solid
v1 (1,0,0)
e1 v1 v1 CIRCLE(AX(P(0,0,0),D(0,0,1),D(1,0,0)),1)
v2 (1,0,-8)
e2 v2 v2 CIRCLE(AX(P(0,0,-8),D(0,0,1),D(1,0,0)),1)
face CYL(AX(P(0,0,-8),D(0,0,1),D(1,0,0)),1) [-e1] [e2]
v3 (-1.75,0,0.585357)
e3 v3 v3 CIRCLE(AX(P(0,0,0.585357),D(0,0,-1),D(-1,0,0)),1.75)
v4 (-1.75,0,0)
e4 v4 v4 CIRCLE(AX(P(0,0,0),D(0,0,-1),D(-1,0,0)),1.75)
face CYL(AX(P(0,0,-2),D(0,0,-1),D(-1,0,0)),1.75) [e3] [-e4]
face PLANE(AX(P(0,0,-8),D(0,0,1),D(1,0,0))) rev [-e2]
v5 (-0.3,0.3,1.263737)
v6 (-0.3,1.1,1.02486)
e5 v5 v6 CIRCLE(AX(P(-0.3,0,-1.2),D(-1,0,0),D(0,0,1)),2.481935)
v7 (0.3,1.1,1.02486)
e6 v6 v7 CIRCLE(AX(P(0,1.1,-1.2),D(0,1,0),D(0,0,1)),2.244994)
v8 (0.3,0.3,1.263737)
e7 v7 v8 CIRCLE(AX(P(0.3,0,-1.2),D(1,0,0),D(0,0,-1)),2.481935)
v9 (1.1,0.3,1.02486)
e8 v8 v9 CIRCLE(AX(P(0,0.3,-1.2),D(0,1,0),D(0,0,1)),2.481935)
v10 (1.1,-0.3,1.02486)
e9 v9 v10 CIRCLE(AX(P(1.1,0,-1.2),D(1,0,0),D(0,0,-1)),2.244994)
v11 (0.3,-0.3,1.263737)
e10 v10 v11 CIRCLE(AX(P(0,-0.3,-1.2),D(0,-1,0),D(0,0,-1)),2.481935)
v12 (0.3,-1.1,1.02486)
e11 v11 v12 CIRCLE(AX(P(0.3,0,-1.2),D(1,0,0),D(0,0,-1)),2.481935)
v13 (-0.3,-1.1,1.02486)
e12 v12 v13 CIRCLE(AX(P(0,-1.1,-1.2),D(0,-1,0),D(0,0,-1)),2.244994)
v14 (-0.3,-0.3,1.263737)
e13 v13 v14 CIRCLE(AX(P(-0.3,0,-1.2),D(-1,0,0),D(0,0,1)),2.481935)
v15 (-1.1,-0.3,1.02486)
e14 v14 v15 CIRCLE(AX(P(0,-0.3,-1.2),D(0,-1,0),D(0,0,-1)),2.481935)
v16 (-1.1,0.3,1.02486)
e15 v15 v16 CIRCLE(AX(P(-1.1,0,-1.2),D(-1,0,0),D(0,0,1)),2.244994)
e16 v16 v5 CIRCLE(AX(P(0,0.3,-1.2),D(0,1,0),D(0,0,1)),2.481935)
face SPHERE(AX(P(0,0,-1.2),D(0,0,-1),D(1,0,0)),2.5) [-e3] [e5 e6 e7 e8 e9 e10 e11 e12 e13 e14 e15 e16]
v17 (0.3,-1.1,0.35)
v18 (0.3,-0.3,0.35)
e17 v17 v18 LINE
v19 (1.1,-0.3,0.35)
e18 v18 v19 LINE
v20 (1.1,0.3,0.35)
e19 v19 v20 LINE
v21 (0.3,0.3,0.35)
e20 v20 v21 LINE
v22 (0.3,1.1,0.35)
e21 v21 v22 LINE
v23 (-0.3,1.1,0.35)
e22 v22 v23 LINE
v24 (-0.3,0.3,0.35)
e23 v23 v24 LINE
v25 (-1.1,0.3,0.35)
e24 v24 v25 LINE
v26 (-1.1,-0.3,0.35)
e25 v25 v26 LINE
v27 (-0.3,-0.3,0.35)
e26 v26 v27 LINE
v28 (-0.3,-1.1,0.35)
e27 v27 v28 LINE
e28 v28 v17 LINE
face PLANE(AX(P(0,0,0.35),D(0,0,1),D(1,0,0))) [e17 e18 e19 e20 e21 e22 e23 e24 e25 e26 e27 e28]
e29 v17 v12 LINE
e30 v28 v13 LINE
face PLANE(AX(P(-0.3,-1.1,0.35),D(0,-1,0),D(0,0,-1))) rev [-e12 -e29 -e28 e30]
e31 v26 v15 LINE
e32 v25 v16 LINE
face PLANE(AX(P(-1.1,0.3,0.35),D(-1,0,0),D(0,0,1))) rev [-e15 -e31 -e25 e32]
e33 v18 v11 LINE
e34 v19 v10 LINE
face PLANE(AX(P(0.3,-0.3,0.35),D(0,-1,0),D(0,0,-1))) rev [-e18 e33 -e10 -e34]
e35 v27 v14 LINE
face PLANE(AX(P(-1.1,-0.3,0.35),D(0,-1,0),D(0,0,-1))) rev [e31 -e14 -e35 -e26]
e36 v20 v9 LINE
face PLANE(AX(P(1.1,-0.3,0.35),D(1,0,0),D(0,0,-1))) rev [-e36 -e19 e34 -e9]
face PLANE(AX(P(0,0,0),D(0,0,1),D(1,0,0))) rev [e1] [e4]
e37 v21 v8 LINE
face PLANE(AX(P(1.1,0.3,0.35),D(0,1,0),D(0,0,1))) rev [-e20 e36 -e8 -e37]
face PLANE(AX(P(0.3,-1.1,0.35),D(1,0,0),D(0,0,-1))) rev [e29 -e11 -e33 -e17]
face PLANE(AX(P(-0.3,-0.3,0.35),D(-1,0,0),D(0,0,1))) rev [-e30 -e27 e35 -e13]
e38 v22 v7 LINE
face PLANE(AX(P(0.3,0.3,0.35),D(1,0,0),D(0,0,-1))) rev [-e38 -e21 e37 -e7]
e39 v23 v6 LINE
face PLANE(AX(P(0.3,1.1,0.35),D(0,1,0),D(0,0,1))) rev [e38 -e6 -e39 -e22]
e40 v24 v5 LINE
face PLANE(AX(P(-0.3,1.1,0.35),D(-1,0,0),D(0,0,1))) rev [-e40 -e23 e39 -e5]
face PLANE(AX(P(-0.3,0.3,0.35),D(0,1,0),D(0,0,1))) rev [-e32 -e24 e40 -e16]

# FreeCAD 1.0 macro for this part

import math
import FreeCAD as App
import Part
import Sketcher

V = App.Vector
Q = App.Units.Quantity


def add_polygon(sketch, points):
    """Adds a closed chain of lines whose ends are joined by coincident constraints."""
    first, n = sketch.GeometryCount, len(points)
    for a, b in zip(points, points[1:] + points[:1]):
        sketch.addGeometry(Part.LineSegment(App.Vector(*a, 0), App.Vector(*b, 0)), False)
    for i in range(n):
        sketch.addConstraint(Sketcher.Constraint("Coincident", first + i, 2, first + (i + 1) % n, 1))

doc = App.newDocument("Part")
body = doc.addObject("PartDesign::Body", "Body")

# Sketch on XY plane
sketch1 = body.newObject("Sketcher::SketchObject", "Sketch")
sketch1.AttachmentSupport = (doc.getObject("XY_Plane"), [""])
sketch1.MapMode = "FlatFace"
sketch1.addGeometry(Part.Circle(V(0, 0, 0), V(0, 0, 1), 1), False)
sketch1.addConstraint(Sketcher.Constraint("Coincident", 0, 3, -1, 1))
sketch1.addConstraint(Sketcher.Constraint("Diameter", 0, Q("2 mm")))
pad1 = body.newObject("PartDesign::Pad", "Pad")
pad1.Profile = sketch1
pad1.Length = 8
pad1.Reversed = True

# Sketch on XZ plane
sketch2 = body.newObject("Sketcher::SketchObject", "Sketch001")
sketch2.AttachmentSupport = (doc.getObject("XZ_Plane"), [""])
sketch2.MapMode = "FlatFace"
sketch2.addGeometry(Part.LineSegment(V(1.8, 0, 0), V(0, 0, 0)), False)
sketch2.addGeometry(Part.LineSegment(V(0, 0, 0), V(0, 1.3, 0)), False)
sketch2.addGeometry(Part.ArcOfCircle(Part.Circle(V(0, -1.2, 0), V(0, 0, 1), 2.5), math.radians(46), math.radians(90)), False)
sketch2.addGeometry(Part.LineSegment(V(1.8, 0.6, 0), V(1.8, 0, 0)), False)
sketch2.addConstraint(Sketcher.Constraint("Coincident", 0, 2, 1, 1))
sketch2.addConstraint(Sketcher.Constraint("Coincident", 1, 2, 2, 2))
sketch2.addConstraint(Sketcher.Constraint("Coincident", 2, 1, 3, 1))
sketch2.addConstraint(Sketcher.Constraint("Coincident", 3, 2, 0, 1))
sketch2.addConstraint(Sketcher.Constraint("Horizontal", 0))
sketch2.addConstraint(Sketcher.Constraint("Vertical", 1))
sketch2.addConstraint(Sketcher.Constraint("Vertical", 3))
sketch2.addConstraint(Sketcher.Constraint("Coincident", 0, 2, -1, 1))
sketch2.addConstraint(Sketcher.Constraint("PointOnObject", 2, 3, -2))
sketch2.addConstraint(Sketcher.Constraint("Radius", 2, Q("2.5 mm")))
sketch2.addConstraint(Sketcher.Constraint("DistanceY", 1, 1, 1, 2, Q("1.3 mm")))
sketch2.addConstraint(Sketcher.Constraint("DistanceX", 0, 2, 0, 1, Q("1.75 mm")))
revolution = body.newObject("PartDesign::Revolution", "Revolution")
revolution.Profile = sketch2
revolution.ReferenceAxis = (sketch2, ["V_Axis"])
revolution.Angle = 360

# Sketch on XY plane
sketch3 = body.newObject("Sketcher::SketchObject", "Sketch002")
sketch3.AttachmentSupport = (doc.getObject("XY_Plane"), [""])
sketch3.MapMode = "FlatFace"
sketch3.AttachmentOffset = App.Placement(V(0, 0, 1.31), App.Rotation())
add_polygon(sketch3, [(-0.3, -1.1), (0.3, -1.1), (0.3, -0.3), (1.1, -0.3), (1.1, 0.3), (0.3, 0.3), (0.3, 1.1), (-0.3, 1.1), (-0.3, 0.3), (-1.1, 0.3), (-1.1, -0.3), (-0.3, -0.3)])  # lines 0-11
sketch3.addConstraint(Sketcher.Constraint("Horizontal", 0))
sketch3.addConstraint(Sketcher.Constraint("Vertical", 1))
sketch3.addConstraint(Sketcher.Constraint("Horizontal", 2))
sketch3.addConstraint(Sketcher.Constraint("Vertical", 3))
sketch3.addConstraint(Sketcher.Constraint("Horizontal", 4))
sketch3.addConstraint(Sketcher.Constraint("Vertical", 5))
sketch3.addConstraint(Sketcher.Constraint("Horizontal", 6))
sketch3.addConstraint(Sketcher.Constraint("Vertical", 7))
sketch3.addConstraint(Sketcher.Constraint("Horizontal", 8))
sketch3.addConstraint(Sketcher.Constraint("Vertical", 9))
sketch3.addConstraint(Sketcher.Constraint("Horizontal", 10))
sketch3.addConstraint(Sketcher.Constraint("Vertical", 11))
sketch3.addConstraint(Sketcher.Constraint("Symmetric", 0, 2, 6, 2, -1, 1))
sketch3.addConstraint(Sketcher.Constraint("Symmetric", 2, 2, 8, 2, -1, 1))
sketch3.addConstraint(Sketcher.Constraint("Symmetric", 4, 2, 10, 2, -1, 1))
sketch3.addConstraint(Sketcher.Constraint("Symmetric", 4, 2, 7, 2, -2))
sketch3.addConstraint(Sketcher.Constraint("Equal", 10, 1))
sketch3.addConstraint(Sketcher.Constraint("Equal", 6, 3))
sketch3.addConstraint(Sketcher.Constraint("DistanceX", 0, 1, 0, 2, Q("0.6 mm")))
sketch3.addConstraint(Sketcher.Constraint("DistanceX", 2, 1, 2, 2, Q("0.8 mm")))
pocket1 = body.newObject("PartDesign::Pocket", "Pocket")
pocket1.Profile = sketch3
pocket1.Length = 0.96

doc.recompute()
